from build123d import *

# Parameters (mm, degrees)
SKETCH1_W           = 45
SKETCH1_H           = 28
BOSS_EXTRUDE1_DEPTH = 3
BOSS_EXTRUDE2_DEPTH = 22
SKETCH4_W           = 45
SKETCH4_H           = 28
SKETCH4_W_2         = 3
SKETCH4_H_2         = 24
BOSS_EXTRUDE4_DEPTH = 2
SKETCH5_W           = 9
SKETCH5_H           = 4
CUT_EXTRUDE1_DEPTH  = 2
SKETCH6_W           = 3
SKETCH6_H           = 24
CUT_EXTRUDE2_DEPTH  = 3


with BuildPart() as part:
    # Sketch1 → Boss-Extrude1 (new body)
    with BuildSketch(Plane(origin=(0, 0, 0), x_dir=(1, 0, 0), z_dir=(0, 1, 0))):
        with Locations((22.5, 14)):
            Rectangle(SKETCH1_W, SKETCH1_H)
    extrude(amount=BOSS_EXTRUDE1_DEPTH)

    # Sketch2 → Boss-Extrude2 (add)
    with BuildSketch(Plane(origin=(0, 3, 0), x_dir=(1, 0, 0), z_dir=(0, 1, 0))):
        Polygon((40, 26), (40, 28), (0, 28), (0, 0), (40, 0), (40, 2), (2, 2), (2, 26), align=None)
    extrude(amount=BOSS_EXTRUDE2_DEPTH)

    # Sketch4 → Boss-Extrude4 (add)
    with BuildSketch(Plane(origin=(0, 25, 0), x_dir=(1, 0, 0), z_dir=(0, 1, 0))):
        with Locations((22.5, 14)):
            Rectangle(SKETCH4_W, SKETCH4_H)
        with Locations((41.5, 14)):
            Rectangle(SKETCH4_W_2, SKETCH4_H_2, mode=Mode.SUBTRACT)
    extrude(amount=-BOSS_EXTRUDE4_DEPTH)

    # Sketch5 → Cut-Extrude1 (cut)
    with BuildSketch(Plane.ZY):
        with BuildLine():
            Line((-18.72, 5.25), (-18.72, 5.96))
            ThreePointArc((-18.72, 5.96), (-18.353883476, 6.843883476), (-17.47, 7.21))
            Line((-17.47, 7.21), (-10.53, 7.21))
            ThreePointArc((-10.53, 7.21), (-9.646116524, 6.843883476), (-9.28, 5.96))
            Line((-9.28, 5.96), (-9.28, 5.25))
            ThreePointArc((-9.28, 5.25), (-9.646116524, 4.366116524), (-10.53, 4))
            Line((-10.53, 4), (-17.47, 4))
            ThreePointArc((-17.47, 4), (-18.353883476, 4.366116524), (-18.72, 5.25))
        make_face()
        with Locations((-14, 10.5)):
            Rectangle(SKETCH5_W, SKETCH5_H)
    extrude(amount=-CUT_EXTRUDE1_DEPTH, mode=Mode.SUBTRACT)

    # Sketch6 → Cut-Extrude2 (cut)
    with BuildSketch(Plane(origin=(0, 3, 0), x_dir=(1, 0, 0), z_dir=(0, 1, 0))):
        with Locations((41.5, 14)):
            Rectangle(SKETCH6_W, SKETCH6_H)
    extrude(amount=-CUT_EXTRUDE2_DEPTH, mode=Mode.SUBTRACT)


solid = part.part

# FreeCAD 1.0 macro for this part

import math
import FreeCAD as App
import Part
import Sketcher
Q = App.Units.Quantity


def add_polygon(sketch, points):
    """Adds a closed chain of lines whose ends are joined by coincident constraints."""
    first, n = sketch.GeometryCount, len(points)
    for a, b in zip(points, points[1:] + points[:1]):
        sketch.addGeometry(Part.LineSegment(App.Vector(*a, 0), App.Vector(*b, 0)), False)
    for i in range(n):
        sketch.addConstraint(Sketcher.Constraint("Coincident", first + i, 2, first + (i + 1) % n, 1))

doc = App.newDocument("Part")
body = doc.addObject("PartDesign::Body", "Body")

sketch1 = doc.addObject("Sketcher::SketchObject", "Sketch")
body.addObject(sketch1)
sketch1.AttachmentSupport = (doc.XZ_Plane, [""])
sketch1.MapMode = "FlatFace"
add_polygon(sketch1, [(0, -28), (0, 0), (45, 0), (45, -28)])
sketch1.addConstraint([
    Sketcher.Constraint("Vertical", 0),
    Sketcher.Constraint("Horizontal", 1),
    Sketcher.Constraint("Vertical", 2),
    Sketcher.Constraint("Horizontal", 3),
    Sketcher.Constraint("Coincident", 0, 2, -1, 1),
    Sketcher.Constraint("DistanceX", 1, 1, 1, 2, Q("45 mm")),
    Sketcher.Constraint("DistanceY", 0, 1, 0, 2, Q("28 mm")),
])
pad1 = doc.addObject("PartDesign::Pad", "Pad")
body.addObject(pad1)
pad1.Profile = sketch1
pad1.Length = 3
pad1.Reversed = True

sketch2 = doc.addObject("Sketcher::SketchObject", "Sketch001")
body.addObject(sketch2)
sketch2.AttachmentSupport = (doc.XZ_Plane, [""])
sketch2.MapMode = "FlatFace"
sketch2.AttachmentOffset = App.Placement(App.Vector(0, 0, -3), App.Rotation())
add_polygon(sketch2, [(40, -26), (40, -28), (0, -28), (0, 0), (40, 0), (40, -2), (2, -2), (2, -26)])
sketch2.addConstraint([
    Sketcher.Constraint("Vertical", 0),
    Sketcher.Constraint("Horizontal", 1),
    Sketcher.Constraint("Vertical", 2),
    Sketcher.Constraint("Horizontal", 3),
    Sketcher.Constraint("Vertical", 4),
    Sketcher.Constraint("Horizontal", 5),
    Sketcher.Constraint("Vertical", 6),
    Sketcher.Constraint("Horizontal", 7),
    Sketcher.Constraint("Coincident", 2, 2, -1, 1),
    Sketcher.Constraint("Vertical", 0, 2, 3, 2),
    Sketcher.Constraint("Equal", 0, 4),
    Sketcher.Constraint("DistanceX", 1, 2, 1, 1, Q("40 mm")),
    Sketcher.Constraint("DistanceX", 5, 2, 5, 1, Q("38 mm")),
    Sketcher.Constraint("DistanceY", 0, 2, 0, 1, Q("2 mm")),
    Sketcher.Constraint("DistanceY", 2, 1, 2, 2, Q("28 mm")),
])
pad2 = doc.addObject("PartDesign::Pad", "Pad001")
body.addObject(pad2)
pad2.Profile = sketch2
pad2.Length = 22
pad2.Reversed = True

sketch3 = doc.addObject("Sketcher::SketchObject", "Sketch002")
body.addObject(sketch3)
sketch3.AttachmentSupport = (doc.XZ_Plane, [""])
sketch3.MapMode = "FlatFace"
sketch3.AttachmentOffset = App.Placement(App.Vector(0, 0, -25), App.Rotation())
add_polygon(sketch3, [(0, -28), (0, 0), (45, 0), (45, -28)])
add_polygon(sketch3, [(43, -2), (40, -2), (40, -26), (43, -26)])
sketch3.addConstraint([
    Sketcher.Constraint("Vertical", 0),
    Sketcher.Constraint("Horizontal", 1),
    Sketcher.Constraint("Vertical", 2),
    Sketcher.Constraint("Horizontal", 3),
    Sketcher.Constraint("Horizontal", 4),
    Sketcher.Constraint("Vertical", 5),
    Sketcher.Constraint("Horizontal", 6),
    Sketcher.Constraint("Vertical", 7),
    Sketcher.Constraint("Coincident", 0, 2, -1, 1),
    Sketcher.Constraint("DistanceX", 1, 1, 1, 2, Q("45 mm")),
    Sketcher.Constraint("DistanceX", 4, 2, 4, 1, Q("3 mm")),
    Sketcher.Constraint("DistanceY", 0, 1, 0, 2, Q("28 mm")),
    Sketcher.Constraint("DistanceY", 5, 2, 5, 1, Q("24 mm")),
    Sketcher.Constraint("DistanceX", -1, 1, 4, 2, Q("40 mm")),
    Sketcher.Constraint("DistanceY", 4, 2, -1, 1, Q("2 mm")),
])
pad3 = doc.addObject("PartDesign::Pad", "Pad002")
body.addObject(pad3)
pad3.Profile = sketch3
pad3.Length = 2

sketch4 = doc.addObject("Sketcher::SketchObject", "Sketch003")
body.addObject(sketch4)
sketch4.AttachmentSupport = (doc.YZ_Plane, [""])
sketch4.MapMode = "FlatFace"
sketch4.addGeometry(Part.LineSegment(App.Vector(5.96, -18.72, 0), App.Vector(5.25, -18.72, 0)), False)
sketch4.addGeometry(Part.ArcOfCircle(Part.Circle(App.Vector(5.25, -17.47, 0), App.Vector(0, 0, 1), 1.25), math.radians(-180), math.radians(-90)), False)
sketch4.addGeometry(Part.LineSegment(App.Vector(4, -17.47, 0), App.Vector(4, -10.53, 0)), False)
sketch4.addGeometry(Part.ArcOfCircle(Part.Circle(App.Vector(5.25, -10.53, 0), App.Vector(0, 0, 1), 1.25), math.radians(90), math.radians(180)), False)
sketch4.addGeometry(Part.LineSegment(App.Vector(5.25, -9.28, 0), App.Vector(5.96, -9.28, 0)), False)
sketch4.addGeometry(Part.ArcOfCircle(Part.Circle(App.Vector(5.96, -10.53, 0), App.Vector(0, 0, 1), 1.25), math.radians(0), math.radians(90)), False)
sketch4.addGeometry(Part.LineSegment(App.Vector(7.21, -10.53, 0), App.Vector(7.21, -17.47, 0)), False)
sketch4.addGeometry(Part.ArcOfCircle(Part.Circle(App.Vector(5.96, -17.47, 0), App.Vector(0, 0, 1), 1.25), math.radians(-90), math.radians(0)), False)
add_polygon(sketch4, [(12.5, -18.5), (8.5, -18.5), (8.5, -9.5), (12.5, -9.5)])
sketch4.addConstraint([
    Sketcher.Constraint("Tangent", 0, 2, 1, 2),
    Sketcher.Constraint("Tangent", 1, 1, 2, 1),
    Sketcher.Constraint("Tangent", 2, 2, 3, 2),
    Sketcher.Constraint("Tangent", 3, 1, 4, 1),
    Sketcher.Constraint("Tangent", 4, 2, 5, 2),
    Sketcher.Constraint("Tangent", 5, 1, 6, 1),
    Sketcher.Constraint("Tangent", 6, 2, 7, 2),
    Sketcher.Constraint("Tangent", 7, 1, 0, 1),
    Sketcher.Constraint("Horizontal", 0),
    Sketcher.Constraint("Vertical", 2),
    Sketcher.Constraint("Horizontal", 4),
    Sketcher.Constraint("Vertical", 6),
    Sketcher.Constraint("Horizontal", 8),
    Sketcher.Constraint("Vertical", 9),
    Sketcher.Constraint("Horizontal", 10),
    Sketcher.Constraint("Vertical", 11),
    Sketcher.Constraint("Equal", 1, 3),
    Sketcher.Constraint("Equal", 3, 5),
    Sketcher.Constraint("Equal", 5, 7),
    Sketcher.Constraint("DistanceX", 8, 2, 8, 1, Q("4 mm")),
    Sketcher.Constraint("DistanceY", 9, 1, 9, 2, Q("9 mm")),
    Sketcher.Constraint("Radius", 1, Q("1.25 mm")),
    Sketcher.Constraint("DistanceX", -1, 1, 1, 1, Q("4 mm")),
    Sketcher.Constraint("DistanceX", 0, 2, 0, 1, Q("0.71 mm")),
    Sketcher.Constraint("DistanceY", 2, 1, 2, 2, Q("6.94 mm")),
    Sketcher.Constraint("DistanceX", -1, 1, 8, 2, Q("8.5 mm")),
    Sketcher.Constraint("DistanceY", 8, 2, -1, 1, Q("18.5 mm")),
    Sketcher.Constraint("DistanceY", 1, 3, -1, 1, Q("17.47 mm")),
])
pocket1 = doc.addObject("PartDesign::Pocket", "Pocket")
body.addObject(pocket1)
pocket1.Profile = sketch4
pocket1.Length = 2
pocket1.Reversed = True

sketch5 = doc.addObject("Sketcher::SketchObject", "Sketch004")
body.addObject(sketch5)
sketch5.AttachmentSupport = (doc.XZ_Plane, [""])
sketch5.MapMode = "FlatFace"
sketch5.AttachmentOffset = App.Placement(App.Vector(0, 0, -3), App.Rotation())
add_polygon(sketch5, [(40, -26), (40, -2), (43, -2), (43, -26)])
sketch5.addConstraint([
    Sketcher.Constraint("Vertical", 0),
    Sketcher.Constraint("Horizontal", 1),
    Sketcher.Constraint("Vertical", 2),
    Sketcher.Constraint("Horizontal", 3),
    Sketcher.Constraint("DistanceX", 1, 1, 1, 2, Q("3 mm")),
    Sketcher.Constraint("DistanceY", 0, 1, 0, 2, Q("24 mm")),
    Sketcher.Constraint("DistanceX", -1, 1, 0, 2, Q("40 mm")),
    Sketcher.Constraint("DistanceY", 0, 2, -1, 1, Q("2 mm")),
])
pocket2 = doc.addObject("PartDesign::Pocket", "Pocket001")
body.addObject(pocket2)
pocket2.Profile = sketch5
pocket2.Length = 3
pocket2.Reversed = True

doc.recompute()
